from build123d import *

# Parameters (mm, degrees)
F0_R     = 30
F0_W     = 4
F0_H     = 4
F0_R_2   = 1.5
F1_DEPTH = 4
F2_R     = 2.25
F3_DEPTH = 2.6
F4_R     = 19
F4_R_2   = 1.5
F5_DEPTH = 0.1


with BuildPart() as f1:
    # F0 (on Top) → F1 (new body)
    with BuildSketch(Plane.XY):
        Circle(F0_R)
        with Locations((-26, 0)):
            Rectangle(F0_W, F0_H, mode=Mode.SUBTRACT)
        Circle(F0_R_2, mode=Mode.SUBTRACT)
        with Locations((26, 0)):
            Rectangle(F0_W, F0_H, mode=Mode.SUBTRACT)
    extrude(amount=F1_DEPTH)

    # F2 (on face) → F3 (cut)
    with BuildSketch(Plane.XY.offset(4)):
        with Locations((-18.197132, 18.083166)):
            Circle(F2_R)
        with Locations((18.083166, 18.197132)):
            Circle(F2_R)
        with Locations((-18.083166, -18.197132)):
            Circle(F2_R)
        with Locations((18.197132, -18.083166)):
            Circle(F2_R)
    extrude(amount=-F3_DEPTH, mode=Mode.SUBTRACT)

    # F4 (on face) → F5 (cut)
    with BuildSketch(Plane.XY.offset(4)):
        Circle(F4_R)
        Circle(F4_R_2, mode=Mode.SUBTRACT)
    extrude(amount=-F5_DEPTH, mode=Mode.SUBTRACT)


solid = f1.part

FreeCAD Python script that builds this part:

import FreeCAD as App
import Part
import Sketcher
from FreeCAD import Vector

doc = App.newDocument("Part")
params = doc.addObject("Spreadsheet::Sheet", "Params")
for row, (alias, value) in enumerate([
    ("sketch1_diameter", "60 mm"),
    ("sketch1_diameter2", "3 mm"),
    ("sketch1_width", "4 mm"),
    ("pad1_length", "4 mm"),
    ("sketch2_diameter", "4.5 mm"),
    ("pocket1_length", "2.6 mm"),
    ("sketch3_diameter", "38 mm"),
    ("sketch3_diameter2", "3 mm"),
    ("pocket2_length", "0.1 mm"),
], start=1):
    params.set(f"A{row}", alias)
    params.set(f"B{row}", "=" + value)
    params.setAlias(f"B{row}", alias)

body = doc.addObject("PartDesign::Body", "Body")

sketch1 = body.newObject("Sketcher::SketchObject", "Sketch")
sketch1.AttachmentSupport = (doc.getObject("XY_Plane"), [""])
sketch1.MapMode = "FlatFace"
sketch1.addGeometry(Part.Circle(Vector(0, 0, 0), Vector(0, 0, 1), 30), False)
sketch1.addGeometry(Part.LineSegment(Vector(-24, -2, 0), Vector(-28, -2, 0)), False)
sketch1.addGeometry(Part.LineSegment(Vector(-28, -2, 0), Vector(-28, 2, 0)), False)
sketch1.addGeometry(Part.LineSegment(Vector(-28, 2, 0), Vector(-24, 2, 0)), False)
sketch1.addGeometry(Part.LineSegment(Vector(-24, 2, 0), Vector(-24, -2, 0)), False)
sketch1.addGeometry(Part.Circle(Vector(0, 0, 0), Vector(0, 0, 1), 1.5), False)
sketch1.addGeometry(Part.LineSegment(Vector(28, -2, 0), Vector(24, -2, 0)), False)
sketch1.addGeometry(Part.LineSegment(Vector(24, -2, 0), Vector(24, 2, 0)), False)
sketch1.addGeometry(Part.LineSegment(Vector(24, 2, 0), Vector(28, 2, 0)), False)
sketch1.addGeometry(Part.LineSegment(Vector(28, 2, 0), Vector(28, -2, 0)), False)
sketch1.addConstraint(Sketcher.Constraint("Coincident", 1, 2, 2, 1))
sketch1.addConstraint(Sketcher.Constraint("Coincident", 2, 2, 3, 1))
sketch1.addConstraint(Sketcher.Constraint("Coincident", 3, 2, 4, 1))
sketch1.addConstraint(Sketcher.Constraint("Coincident", 4, 2, 1, 1))
sketch1.addConstraint(Sketcher.Constraint("Coincident", 6, 2, 7, 1))
sketch1.addConstraint(Sketcher.Constraint("Coincident", 7, 2, 8, 1))
sketch1.addConstraint(Sketcher.Constraint("Coincident", 8, 2, 9, 1))
sketch1.addConstraint(Sketcher.Constraint("Coincident", 9, 2, 6, 1))
sketch1.addConstraint(Sketcher.Constraint("Horizontal", 1))
sketch1.addConstraint(Sketcher.Constraint("Vertical", 2))
sketch1.addConstraint(Sketcher.Constraint("Horizontal", 3))
sketch1.addConstraint(Sketcher.Constraint("Vertical", 4))
sketch1.addConstraint(Sketcher.Constraint("Horizontal", 6))
sketch1.addConstraint(Sketcher.Constraint("Vertical", 7))
sketch1.addConstraint(Sketcher.Constraint("Horizontal", 8))
sketch1.addConstraint(Sketcher.Constraint("Vertical", 9))
sketch1.addConstraint(Sketcher.Constraint("Coincident", 0, 3, -1, 1))
sketch1.addConstraint(Sketcher.Constraint("Coincident", 5, 3, -1, 1))
sketch1.addConstraint(Sketcher.Constraint("Symmetric", 3, 2, 6, 2, -1, 1))
sketch1.addConstraint(Sketcher.Constraint("Symmetric", 1, 2, 8, 2, -1, 1))
sketch1.addConstraint(Sketcher.Constraint("Horizontal", 4, 2, 6, 2))
sketch1.addConstraint(Sketcher.Constraint("Equal", 8, 2))
sketch1.addConstraint(Sketcher.Constraint("Diameter", 0, 60.0))
sketch1.addConstraint(Sketcher.Constraint("Diameter", 5, 3.0))
sketch1.addConstraint(Sketcher.Constraint("DistanceX", 1, 2, 1, 1, 4.0))
sketch1.addConstraint(Sketcher.Constraint("DistanceX", 1, 2, -1, 1, 28.0))
sketch1.setExpression("Constraints[22]", "Params.sketch1_diameter")
sketch1.setExpression("Constraints[23]", "Params.sketch1_diameter2")
sketch1.setExpression("Constraints[24]", "Params.sketch1_width")
pad1 = body.newObject("PartDesign::Pad", "Pad")
pad1.Profile = sketch1
pad1.setExpression("Length", "Params.pad1_length")

sketch2 = body.newObject("Sketcher::SketchObject", "Sketch001")
sketch2.AttachmentSupport = (doc.getObject("XY_Plane"), [""])
sketch2.MapMode = "FlatFace"
sketch2.AttachmentOffset = App.Placement(Vector(0, 0, 4), App.Rotation())
sketch2.addGeometry(Part.Circle(Vector(-18.2, 18.1, 0), Vector(0, 0, 1), 2.2), False)
sketch2.addGeometry(Part.Circle(Vector(18.1, 18.2, 0), Vector(0, 0, 1), 2.2), False)
sketch2.addGeometry(Part.Circle(Vector(-18.1, -18.2, 0), Vector(0, 0, 1), 2.2), False)
sketch2.addGeometry(Part.Circle(Vector(18.2, -18.1, 0), Vector(0, 0, 1), 2.2), False)
sketch2.addConstraint(Sketcher.Constraint("Equal", 0, 1))
sketch2.addConstraint(Sketcher.Constraint("Equal", 1, 2))
sketch2.addConstraint(Sketcher.Constraint("Equal", 2, 3))
sketch2.addConstraint(Sketcher.Constraint("Symmetric", 1, 3, 2, 3, -1, 1))
sketch2.addConstraint(Sketcher.Constraint("Symmetric", 0, 3, 3, 3, -1, 1))
sketch2.addConstraint(Sketcher.Constraint("Diameter", 0, 4.5))
sketch2.addConstraint(Sketcher.Constraint("DistanceX", 0, 3, 1, 3, 36.280298))
sketch2.addConstraint(Sketcher.Constraint("DistanceY", 2, 3, 0, 3, 36.280298))
sketch2.addConstraint(Sketcher.Constraint("DistanceX", 0, 3, -1, 1, 18.197132))
sketch2.addConstraint(Sketcher.Constraint("DistanceY", -1, 1, 1, 3, 18.197132))
sketch2.setExpression("Constraints[5]", "Params.sketch2_diameter")
pocket1 = body.newObject("PartDesign::Pocket", "Pocket")
pocket1.Profile = sketch2
pocket1.setExpression("Length", "Params.pocket1_length")

sketch3 = body.newObject("Sketcher::SketchObject", "Sketch002")
sketch3.AttachmentSupport = (doc.getObject("XY_Plane"), [""])
sketch3.MapMode = "FlatFace"
sketch3.AttachmentOffset = App.Placement(Vector(0, 0, 4), App.Rotation())
sketch3.addGeometry(Part.Circle(Vector(0, 0, 0), Vector(0, 0, 1), 19), False)
sketch3.addGeometry(Part.Circle(Vector(0, 0, 0), Vector(0, 0, 1), 1.5), False)
sketch3.addConstraint(Sketcher.Constraint("Coincident", 0, 3, -1, 1))
sketch3.addConstraint(Sketcher.Constraint("Coincident", 1, 3, -1, 1))
sketch3.addConstraint(Sketcher.Constraint("Diameter", 0, 38.0))
sketch3.addConstraint(Sketcher.Constraint("Diameter", 1, 3.0))
sketch3.setExpression("Constraints[2]", "Params.sketch3_diameter")
sketch3.setExpression("Constraints[3]", "Params.sketch3_diameter2")
pocket2 = body.newObject("PartDesign::Pocket", "Pocket001")
pocket2.Profile = sketch3
pocket2.setExpression("Length", "Params.pocket2_length")

doc.recompute()
